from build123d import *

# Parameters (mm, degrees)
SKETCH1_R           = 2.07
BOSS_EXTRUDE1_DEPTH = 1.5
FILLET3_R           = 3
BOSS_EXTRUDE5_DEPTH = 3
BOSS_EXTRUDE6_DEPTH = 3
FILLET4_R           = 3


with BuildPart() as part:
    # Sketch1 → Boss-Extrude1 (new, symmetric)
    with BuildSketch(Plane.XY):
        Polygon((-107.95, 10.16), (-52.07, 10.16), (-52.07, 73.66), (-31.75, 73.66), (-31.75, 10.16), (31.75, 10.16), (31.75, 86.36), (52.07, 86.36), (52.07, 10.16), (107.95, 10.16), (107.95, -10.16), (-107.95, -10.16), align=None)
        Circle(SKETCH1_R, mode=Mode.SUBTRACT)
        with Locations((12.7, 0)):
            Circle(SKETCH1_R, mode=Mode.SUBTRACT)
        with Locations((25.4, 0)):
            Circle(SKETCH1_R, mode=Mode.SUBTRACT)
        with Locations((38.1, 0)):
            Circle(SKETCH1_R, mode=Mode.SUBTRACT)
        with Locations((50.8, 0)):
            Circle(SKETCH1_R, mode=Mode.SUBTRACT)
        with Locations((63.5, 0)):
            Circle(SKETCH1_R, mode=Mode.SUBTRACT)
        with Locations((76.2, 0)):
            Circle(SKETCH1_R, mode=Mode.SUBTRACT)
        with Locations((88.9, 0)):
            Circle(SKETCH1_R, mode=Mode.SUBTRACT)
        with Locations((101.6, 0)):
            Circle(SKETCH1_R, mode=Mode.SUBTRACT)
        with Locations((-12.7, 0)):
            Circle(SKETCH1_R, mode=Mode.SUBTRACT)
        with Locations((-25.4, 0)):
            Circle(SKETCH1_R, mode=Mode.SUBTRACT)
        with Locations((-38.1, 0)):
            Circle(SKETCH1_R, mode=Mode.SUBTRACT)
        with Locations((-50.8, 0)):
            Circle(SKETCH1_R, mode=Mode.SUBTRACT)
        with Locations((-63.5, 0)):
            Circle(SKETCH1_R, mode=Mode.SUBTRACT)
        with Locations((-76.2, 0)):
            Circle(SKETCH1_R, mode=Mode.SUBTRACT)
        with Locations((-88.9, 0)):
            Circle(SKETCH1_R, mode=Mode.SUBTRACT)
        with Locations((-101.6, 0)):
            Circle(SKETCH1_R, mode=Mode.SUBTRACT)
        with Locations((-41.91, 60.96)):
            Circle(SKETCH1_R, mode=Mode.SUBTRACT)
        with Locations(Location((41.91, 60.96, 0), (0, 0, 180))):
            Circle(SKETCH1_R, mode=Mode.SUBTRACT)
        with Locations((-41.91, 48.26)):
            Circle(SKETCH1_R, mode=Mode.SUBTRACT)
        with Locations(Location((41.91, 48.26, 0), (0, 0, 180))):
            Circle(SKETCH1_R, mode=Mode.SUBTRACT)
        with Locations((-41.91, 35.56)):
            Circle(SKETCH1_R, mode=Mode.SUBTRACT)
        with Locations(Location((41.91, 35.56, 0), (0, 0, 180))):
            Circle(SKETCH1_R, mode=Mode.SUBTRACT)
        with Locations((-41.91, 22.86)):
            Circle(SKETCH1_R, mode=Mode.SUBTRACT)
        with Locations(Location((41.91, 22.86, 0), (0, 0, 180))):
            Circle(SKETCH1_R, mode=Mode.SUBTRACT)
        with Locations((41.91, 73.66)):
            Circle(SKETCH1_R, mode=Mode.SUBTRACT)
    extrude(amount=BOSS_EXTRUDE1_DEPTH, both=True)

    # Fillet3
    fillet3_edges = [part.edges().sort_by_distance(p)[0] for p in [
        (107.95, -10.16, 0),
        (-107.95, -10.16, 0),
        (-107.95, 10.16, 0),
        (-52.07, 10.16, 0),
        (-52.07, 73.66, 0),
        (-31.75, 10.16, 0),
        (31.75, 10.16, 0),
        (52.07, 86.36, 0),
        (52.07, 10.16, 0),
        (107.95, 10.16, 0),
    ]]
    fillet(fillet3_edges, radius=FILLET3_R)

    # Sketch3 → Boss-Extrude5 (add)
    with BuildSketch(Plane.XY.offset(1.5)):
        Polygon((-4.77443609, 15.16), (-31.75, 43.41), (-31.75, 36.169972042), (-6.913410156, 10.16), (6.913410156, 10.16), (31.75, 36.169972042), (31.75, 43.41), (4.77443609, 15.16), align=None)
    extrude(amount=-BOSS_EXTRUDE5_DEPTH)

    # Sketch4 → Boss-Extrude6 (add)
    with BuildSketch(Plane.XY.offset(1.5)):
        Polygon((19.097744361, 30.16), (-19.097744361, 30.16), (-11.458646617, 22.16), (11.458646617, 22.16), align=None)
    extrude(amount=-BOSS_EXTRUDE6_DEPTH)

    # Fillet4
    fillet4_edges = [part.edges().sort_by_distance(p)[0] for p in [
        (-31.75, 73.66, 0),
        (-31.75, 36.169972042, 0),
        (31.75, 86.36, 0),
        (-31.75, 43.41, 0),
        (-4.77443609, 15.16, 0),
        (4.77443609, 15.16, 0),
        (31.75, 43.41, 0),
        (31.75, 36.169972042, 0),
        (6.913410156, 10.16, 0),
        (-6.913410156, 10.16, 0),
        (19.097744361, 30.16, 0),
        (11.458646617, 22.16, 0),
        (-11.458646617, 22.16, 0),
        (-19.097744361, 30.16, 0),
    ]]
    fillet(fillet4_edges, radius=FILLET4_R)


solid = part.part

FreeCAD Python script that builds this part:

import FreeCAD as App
import Part
import Sketcher

V = App.Vector
Q = App.Units.Quantity


def edges_at(feature, points):
    """Names of the edges that pass closest to the given points."""
    edges = feature.Shape.Edges
    near = lambda p: min(range(len(edges)), key=lambda i: edges[i].distToShape(Part.Vertex(*p))[0])
    return sorted({f"Edge{near(p) + 1}" for p in points})


def add_polygon(sketch, points):
    """Adds a closed chain of lines whose ends are joined by coincident constraints."""
    first, n = sketch.GeometryCount, len(points)
    for a, b in zip(points, points[1:] + points[:1]):
        sketch.addGeometry(Part.LineSegment(App.Vector(*a, 0), App.Vector(*b, 0)), False)
    for i in range(n):
        sketch.addConstraint(Sketcher.Constraint("Coincident", first + i, 2, first + (i + 1) % n, 1))

doc = App.newDocument("Part")
body = doc.addObject("PartDesign::Body", "Body")

# Sketch on XY plane
sketch1 = doc.addObject("Sketcher::SketchObject", "Sketch")
body.addObject(sketch1)
sketch1.AttachmentSupport = (doc.XY_Plane, [""])
sketch1.MapMode = "FlatFace"
add_polygon(sketch1, [(-52.07, 10.16), (-107.95, 10.16), (-107.95, -10.16), (107.95, -10.16), (107.95, 10.16), (52.07, 10.16), (52.07, 86.36), (31.75, 86.36), (31.75, 10.16), (-31.75, 10.16), (-31.75, 73.66), (-52.07, 73.66)])  # lines 0-11
sketch1.addGeometry(Part.Circle(V(101.6, 0, 0), V(0, 0, 1), 2.07), False)  # 12
sketch1.addGeometry(Part.Circle(V(88.9, 0, 0), V(0, 0, 1), 2.07), False)  # 13
sketch1.addGeometry(Part.Circle(V(76.2, 0, 0), V(0, 0, 1), 2.07), False)  # 14
sketch1.addGeometry(Part.Circle(V(63.5, 0, 0), V(0, 0, 1), 2.07), False)  # 15
sketch1.addGeometry(Part.Circle(V(50.8, 0, 0), V(0, 0, 1), 2.07), False)  # 16
sketch1.addGeometry(Part.Circle(V(38.1, 0, 0), V(0, 0, 1), 2.07), False)  # 17
sketch1.addGeometry(Part.Circle(V(25.4, 0, 0), V(0, 0, 1), 2.07), False)  # 18
sketch1.addGeometry(Part.Circle(V(12.7, 0, 0), V(0, 0, 1), 2.07), False)  # 19
sketch1.addGeometry(Part.Circle(V(41.91, 22.86, 0), V(0, 0, 1), 2.07), False)  # 20
sketch1.addGeometry(Part.Circle(V(41.91, 35.56, 0), V(0, 0, 1), 2.07), False)  # 21
sketch1.addGeometry(Part.Circle(V(0, 0, 0), V(0, 0, 1), 2.07), False)  # 22
sketch1.addGeometry(Part.Circle(V(-12.7, 0, 0), V(0, 0, 1), 2.07), False)  # 23
sketch1.addGeometry(Part.Circle(V(-25.4, 0, 0), V(0, 0, 1), 2.07), False)  # 24
sketch1.addGeometry(Part.Circle(V(-38.1, 0, 0), V(0, 0, 1), 2.07), False)  # 25
sketch1.addGeometry(Part.Circle(V(-50.8, 0, 0), V(0, 0, 1), 2.07), False)  # 26
sketch1.addGeometry(Part.Circle(V(-63.5, 0, 0), V(0, 0, 1), 2.07), False)  # 27
sketch1.addGeometry(Part.Circle(V(-76.2, 0, 0), V(0, 0, 1), 2.07), False)  # 28
sketch1.addGeometry(Part.Circle(V(-88.9, 0, 0), V(0, 0, 1), 2.07), False)  # 29
sketch1.addGeometry(Part.Circle(V(-101.6, 0, 0), V(0, 0, 1), 2.07), False)  # 30
sketch1.addGeometry(Part.Circle(V(-41.91, 22.86, 0), V(0, 0, 1), 2.07), False)  # 31
sketch1.addGeometry(Part.Circle(V(-41.91, 35.56, 0), V(0, 0, 1), 2.07), False)  # 32
sketch1.addGeometry(Part.Circle(V(41.91, 48.26, 0), V(0, 0, 1), 2.07), False)  # 33
sketch1.addGeometry(Part.Circle(V(41.91, 60.96, 0), V(0, 0, 1), 2.07), False)  # 34
sketch1.addGeometry(Part.Circle(V(41.91, 73.66, 0), V(0, 0, 1), 2.07), False)  # 35
sketch1.addGeometry(Part.Circle(V(-41.91, 48.26, 0), V(0, 0, 1), 2.07), False)  # 36
sketch1.addGeometry(Part.Circle(V(-41.91, 60.96, 0), V(0, 0, 1), 2.07), False)  # 37
sketch1.addConstraint([
    Sketcher.Constraint("Horizontal", 0),
    Sketcher.Constraint("Vertical", 1),
    Sketcher.Constraint("Horizontal", 2),
    Sketcher.Constraint("Vertical", 3),
    Sketcher.Constraint("Horizontal", 4),
    Sketcher.Constraint("Vertical", 5),
    Sketcher.Constraint("Horizontal", 6),
    Sketcher.Constraint("Vertical", 7),
    Sketcher.Constraint("Horizontal", 8),
    Sketcher.Constraint("Vertical", 9),
    Sketcher.Constraint("Horizontal", 10),
    Sketcher.Constraint("Vertical", 11),
    Sketcher.Constraint("Coincident", 22, 3, -1, 1),
    Sketcher.Constraint("Equal", 12, 13),
    Sketcher.Constraint("Equal", 13, 14),
    Sketcher.Constraint("Equal", 14, 15),
    Sketcher.Constraint("Equal", 15, 16),
    Sketcher.Constraint("Equal", 16, 17),
    Sketcher.Constraint("Equal", 17, 18),
    Sketcher.Constraint("Equal", 18, 19),
    Sketcher.Constraint("Equal", 19, 20),
    Sketcher.Constraint("Equal", 20, 21),
    Sketcher.Constraint("Equal", 21, 22),
    Sketcher.Constraint("Equal", 22, 23),
    Sketcher.Constraint("Equal", 23, 24),
    Sketcher.Constraint("Equal", 24, 25),
    Sketcher.Constraint("Equal", 25, 26),
    Sketcher.Constraint("Equal", 26, 27),
    Sketcher.Constraint("Equal", 27, 28),
    Sketcher.Constraint("Equal", 28, 29),
    Sketcher.Constraint("Equal", 29, 30),
    Sketcher.Constraint("Equal", 30, 31),
    Sketcher.Constraint("Equal", 31, 32),
    Sketcher.Constraint("Equal", 32, 33),
    Sketcher.Constraint("Equal", 33, 34),
    Sketcher.Constraint("Equal", 34, 35),
    Sketcher.Constraint("Equal", 35, 36),
    Sketcher.Constraint("Equal", 36, 37),
    Sketcher.Constraint("Symmetric", 19, 3, 23, 3, -1, 1),
    Sketcher.Constraint("Symmetric", 18, 3, 24, 3, -1, 1),
    Sketcher.Constraint("Symmetric", 17, 3, 25, 3, -1, 1),
    Sketcher.Constraint("Symmetric", 16, 3, 26, 3, -1, 1),
    Sketcher.Constraint("Symmetric", 15, 3, 27, 3, -1, 1),
    Sketcher.Constraint("Symmetric", 14, 3, 28, 3, -1, 1),
    Sketcher.Constraint("Symmetric", 13, 3, 29, 3, -1, 1),
    Sketcher.Constraint("Symmetric", 12, 3, 30, 3, -1, 1),
    Sketcher.Constraint("Symmetric", 0, 2, 2, 2, -1, 1),
    Sketcher.Constraint("Symmetric", 20, 3, 31, 3, -2),
    Sketcher.Constraint("Symmetric", 21, 3, 32, 3, -2),
    Sketcher.Constraint("Symmetric", 33, 3, 36, 3, -2),
    Sketcher.Constraint("Symmetric", 34, 3, 37, 3, -2),
    Sketcher.Constraint("Symmetric", 4, 2, 11, 2, -2),
    Sketcher.Constraint("PointOnObject", 12, 3, -1),
    Sketcher.Constraint("PointOnObject", 13, 3, -1),
    Sketcher.Constraint("PointOnObject", 14, 3, -1),
    Sketcher.Constraint("PointOnObject", 15, 3, -1),
    Sketcher.Constraint("PointOnObject", 16, 3, -1),
    Sketcher.Constraint("PointOnObject", 17, 3, -1),
    Sketcher.Constraint("PointOnObject", 18, 3, -1),
    Sketcher.Constraint("PointOnObject", 19, 3, -1),
    Sketcher.Constraint("Horizontal", 4, 2, 7, 2),
    Sketcher.Constraint("Horizontal", 35, 3, 9, 2),
    Sketcher.Constraint("Vertical", 20, 3, 21, 3),
    Sketcher.Constraint("Vertical", 21, 3, 33, 3),
    Sketcher.Constraint("Vertical", 33, 3, 34, 3),
    Sketcher.Constraint("Vertical", 34, 3, 35, 3),
    Sketcher.Constraint("Equal", 6, 10),
    Sketcher.Constraint("Equal", 10, 1),
    Sketcher.Constraint("Equal", 8, 9),
    Sketcher.Constraint("DistanceY", 5, 1, 5, 2, Q("3 in")),
    Sketcher.Constraint("DistanceX", 0, 2, 0, 1, Q("2.2 in")),
    Sketcher.Constraint("DistanceX", 2, 1, 2, 2, Q("8.5 in")),
    Sketcher.Constraint("DistanceX", 6, 2, 6, 1, Q("0.8 in")),
    Sketcher.Constraint("DistanceX", -1, 1, 12, 3, Q("4 in")),
    Sketcher.Constraint("DistanceX", -1, 1, 14, 3, Q("3 in")),
    Sketcher.Constraint("DistanceX", -1, 1, 16, 3, Q("2 in")),
    Sketcher.Constraint("DistanceX", -1, 1, 18, 3, Q("1 in")),
    Sketcher.Constraint("DistanceX", 15, 3, 13, 3, Q("1 in")),
    Sketcher.Constraint("DistanceX", 17, 3, 15, 3, Q("1 in")),
    Sketcher.Constraint("DistanceX", 19, 3, 17, 3, Q("1 in")),
    Sketcher.Constraint("DistanceX", 23, 3, 19, 3, Q("1 in")),
    Sketcher.Constraint("DistanceY", 20, 3, 33, 3, Q("1 in")),
    Sketcher.Constraint("DistanceY", 21, 3, 34, 3, Q("1 in")),
    Sketcher.Constraint("DistanceY", 33, 3, 35, 3, Q("1 in")),
    Sketcher.Constraint("DistanceY", 34, 3, 5, 2, Q("1 in")),
    Sketcher.Constraint("DistanceX", 20, 3, 4, 2, Q("0.4 in")),
    Sketcher.Constraint("Diameter", 12, Q("4.14 mm")),
])
pad1 = doc.addObject("PartDesign::Pad", "Pad")
body.addObject(pad1)
pad1.Profile = sketch1
pad1.Length = 3
pad1.Midplane = True
doc.recompute()

fillet = doc.addObject("PartDesign::Fillet", "Fillet")
body.addObject(fillet)
fillet.Base = (pad1, edges_at(pad1, [
    (107.95, -10.16, 0),
    (-107.95, -10.16, 0),
    (-107.95, 10.16, 0),
    (-52.07, 10.16, 0),
    (-52.07, 73.66, 0),
    (-31.75, 10.16, 0),
    (31.75, 10.16, 0),
    (52.07, 86.36, 0),
    (52.07, 10.16, 0),
    (107.95, 10.16, 0),
]))
fillet.Radius = 3

# Sketch on XY plane
sketch2 = doc.addObject("Sketcher::SketchObject", "Sketch001")
body.addObject(sketch2)
sketch2.AttachmentSupport = (doc.XY_Plane, [""])
sketch2.MapMode = "FlatFace"
sketch2.AttachmentOffset = App.Placement(V(0, 0, 1.5), App.Rotation())
add_polygon(sketch2, [(-4.774436, 15.16), (-31.75, 43.41), (-31.75, 36.169972), (-6.91341, 10.16), (6.91341, 10.16), (31.75, 36.169972), (31.75, 43.41), (4.774436, 15.16)])  # lines 0-7
sketch2.addConstraint([
    Sketcher.Constraint("Vertical", 1),
    Sketcher.Constraint("Horizontal", 3),
    Sketcher.Constraint("Vertical", 5),
    Sketcher.Constraint("Horizontal", 7),
    Sketcher.Constraint("Symmetric", 1, 2, 4, 2, -2),
    Sketcher.Constraint("Parallel", 0, 2),
    Sketcher.Constraint("Parallel", 4, 6),
    Sketcher.Constraint("Horizontal", 0, 2, 5, 2),
    Sketcher.Constraint("Equal", 2, 4),
    Sketcher.Constraint("DistanceY", -1, 1, 2, 2, Q("0.4 in")),
    Sketcher.Constraint("DistanceX", 1, 2, 4, 2, Q("2.5 in")),
    Sketcher.Constraint("DistanceX", 3, 1, 3, 2, Q("13.82682 mm")),
    Sketcher.Constraint("DistanceY", -1, 1, 0, 2, Q("43.41 mm")),
    Sketcher.Constraint("DistanceY", -1, 1, 6, 2, Q("15.16 mm")),
    Sketcher.Constraint("Distance", 2, Q("35.963521 mm")),
])
pad2 = doc.addObject("PartDesign::Pad", "Pad001")
body.addObject(pad2)
pad2.Profile = sketch2
pad2.Length = 3
pad2.Reversed = True

# Sketch on XY plane
sketch3 = doc.addObject("Sketcher::SketchObject", "Sketch002")
body.addObject(sketch3)
sketch3.AttachmentSupport = (doc.XY_Plane, [""])
sketch3.MapMode = "FlatFace"
sketch3.AttachmentOffset = App.Placement(V(0, 0, 1.5), App.Rotation())
add_polygon(sketch3, [(19.097744, 30.16), (-19.097744, 30.16), (-11.458647, 22.16), (11.458647, 22.16)])  # lines 0-3
sketch3.addConstraint([
    Sketcher.Constraint("Horizontal", 0),
    Sketcher.Constraint("Horizontal", 2),
    Sketcher.Constraint("Equal", 1, 3),
    Sketcher.Constraint("DistanceX", 0, 2, 0, 1, Q("38.195489 mm")),
    Sketcher.Constraint("DistanceY", -1, 1, 0, 2, Q("30.16 mm")),
    Sketcher.Constraint("DistanceY", -1, 1, 1, 2, Q("22.16 mm")),
    Sketcher.Constraint("DistanceX", 2, 1, 2, 2, Q("22.917293 mm")),
    Sketcher.Constraint("DistanceX", 0, 2, -1, 1, Q("19.097744 mm")),
])
pad3 = doc.addObject("PartDesign::Pad", "Pad002")
body.addObject(pad3)
pad3.Profile = sketch3
pad3.Length = 3
pad3.Reversed = True
doc.recompute()

fillet2 = doc.addObject("PartDesign::Fillet", "Fillet001")
body.addObject(fillet2)
fillet2.Base = (pad3, edges_at(pad3, [
    (-31.75, 73.66, 0),
    (-31.75, 36.17, 0),
    (31.75, 86.36, 0),
    (-31.75, 43.41, 0),
    (-4.774, 15.16, 0),
    (4.774, 15.16, 0),
    (31.75, 43.41, 0),
    (31.75, 36.17, 0),
    (6.913, 10.16, 0),
    (-6.913, 10.16, 0),
    (19.098, 30.16, 0),
    (11.459, 22.16, 0),
    (-11.459, 22.16, 0),
    (-19.098, 30.16, 0),
]))
fillet2.Radius = 3

doc.recompute()
